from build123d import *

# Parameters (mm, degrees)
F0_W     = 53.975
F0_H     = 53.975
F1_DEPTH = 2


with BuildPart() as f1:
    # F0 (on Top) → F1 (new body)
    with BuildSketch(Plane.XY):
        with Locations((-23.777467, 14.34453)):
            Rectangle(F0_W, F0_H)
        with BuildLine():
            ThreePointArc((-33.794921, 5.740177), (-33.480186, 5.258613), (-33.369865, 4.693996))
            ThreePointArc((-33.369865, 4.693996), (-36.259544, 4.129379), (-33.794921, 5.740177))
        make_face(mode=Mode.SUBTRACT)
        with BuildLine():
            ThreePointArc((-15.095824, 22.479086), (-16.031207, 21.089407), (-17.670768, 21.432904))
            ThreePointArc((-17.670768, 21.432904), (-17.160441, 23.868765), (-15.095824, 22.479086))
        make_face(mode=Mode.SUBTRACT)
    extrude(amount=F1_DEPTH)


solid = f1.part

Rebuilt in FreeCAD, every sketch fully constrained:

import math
import FreeCAD as App
import Part
import Sketcher

doc = App.newDocument("Part")
body = doc.addObject("PartDesign::Body", "Body")

# Sketch on XY plane
sketch1 = body.newObject("Sketcher::SketchObject", "Sketch")
sketch1.AttachmentSupport = (doc.getObject("XY_Plane"), [""])
sketch1.MapMode = "FlatFace"
sketch1.addGeometry(Part.LineSegment(App.Vector(-50.8, 41.3, 0), App.Vector(-50.8, -12.6, 0)), False)
sketch1.addGeometry(Part.LineSegment(App.Vector(-50.8, -12.6, 0), App.Vector(3.2, -12.6, 0)), False)
sketch1.addGeometry(Part.LineSegment(App.Vector(3.2, -12.6, 0), App.Vector(3.2, 41.3, 0)), False)
sketch1.addGeometry(Part.LineSegment(App.Vector(3.2, 41.3, 0), App.Vector(-50.8, 41.3, 0)), False)
sketch1.addGeometry(Part.ArcOfCircle(Part.Circle(App.Vector(-34.9, 4.7, 0), App.Vector(0, 0, 1), 1.5), math.radians(44), math.radians(360)), False)
sketch1.addGeometry(Part.ArcOfCircle(Part.Circle(App.Vector(-34.9, 4.7, 0), App.Vector(0, 0, 1), 1.5), math.radians(0), math.radians(44)), False)
sketch1.addGeometry(Part.ArcOfCircle(Part.Circle(App.Vector(-16.6, 22.5, 0), App.Vector(0, 0, 1), 1.5), math.radians(0), math.radians(224)), False)
sketch1.addGeometry(Part.ArcOfCircle(Part.Circle(App.Vector(-16.6, 22.5, 0), App.Vector(0, 0, 1), 1.5), math.radians(-136), math.radians(0)), False)
sketch1.addConstraint(Sketcher.Constraint("Coincident", 0, 2, 1, 1))
sketch1.addConstraint(Sketcher.Constraint("Coincident", 1, 2, 2, 1))
sketch1.addConstraint(Sketcher.Constraint("Coincident", 2, 2, 3, 1))
sketch1.addConstraint(Sketcher.Constraint("Coincident", 3, 2, 0, 1))
sketch1.addConstraint(Sketcher.Constraint("Tangent", 4, 1, 5, 2))
sketch1.addConstraint(Sketcher.Constraint("Coincident", 5, 1, 4, 2))
sketch1.addConstraint(Sketcher.Constraint("Tangent", 6, 1, 7, 2))
sketch1.addConstraint(Sketcher.Constraint("Coincident", 7, 1, 6, 2))
sketch1.addConstraint(Sketcher.Constraint("Vertical", 0))
sketch1.addConstraint(Sketcher.Constraint("Horizontal", 1))
sketch1.addConstraint(Sketcher.Constraint("Vertical", 2))
sketch1.addConstraint(Sketcher.Constraint("Horizontal", 3))
sketch1.addConstraint(Sketcher.Constraint("Equal", 4, 6))
sketch1.addConstraint(Sketcher.Constraint("Horizontal", 4, 3, 5, 1))
sketch1.addConstraint(Sketcher.Constraint("Horizontal", 7, 3, 6, 1))
sketch1.addConstraint(Sketcher.Constraint("Equal", 3, 0))
sketch1.addConstraint(Sketcher.Constraint("Radius", 4, 1.5))
sketch1.addConstraint(Sketcher.Constraint("DistanceX", 1, 1, 1, 2, 53.975))
sketch1.addConstraint(Sketcher.Constraint("DistanceY", 0, 2, -1, 1, 12.64297))
sketch1.addConstraint(Sketcher.Constraint("DistanceX", 4, 1, -1, 1, 33.794921))
sketch1.addConstraint(Sketcher.Constraint("DistanceX", 7, 1, -1, 1, 17.670768))
sketch1.addConstraint(Sketcher.Constraint("DistanceX", 5, 3, 6, 3, 18.274039))
sketch1.addConstraint(Sketcher.Constraint("DistanceY", 5, 3, 6, 3, 17.785089))
sketch1.addConstraint(Sketcher.Constraint("DistanceY", 5, 3, 4, 1, 1.046181))
sketch1.addConstraint(Sketcher.Constraint("DistanceY", -1, 1, 4, 3, 4.693996))
sketch1.addConstraint(Sketcher.Constraint("DistanceX", 0, 2, -1, 1, 50.764967))
pad1 = body.newObject("PartDesign::Pad", "Pad")
pad1.Profile = sketch1
pad1.Length = 2

doc.recompute()
